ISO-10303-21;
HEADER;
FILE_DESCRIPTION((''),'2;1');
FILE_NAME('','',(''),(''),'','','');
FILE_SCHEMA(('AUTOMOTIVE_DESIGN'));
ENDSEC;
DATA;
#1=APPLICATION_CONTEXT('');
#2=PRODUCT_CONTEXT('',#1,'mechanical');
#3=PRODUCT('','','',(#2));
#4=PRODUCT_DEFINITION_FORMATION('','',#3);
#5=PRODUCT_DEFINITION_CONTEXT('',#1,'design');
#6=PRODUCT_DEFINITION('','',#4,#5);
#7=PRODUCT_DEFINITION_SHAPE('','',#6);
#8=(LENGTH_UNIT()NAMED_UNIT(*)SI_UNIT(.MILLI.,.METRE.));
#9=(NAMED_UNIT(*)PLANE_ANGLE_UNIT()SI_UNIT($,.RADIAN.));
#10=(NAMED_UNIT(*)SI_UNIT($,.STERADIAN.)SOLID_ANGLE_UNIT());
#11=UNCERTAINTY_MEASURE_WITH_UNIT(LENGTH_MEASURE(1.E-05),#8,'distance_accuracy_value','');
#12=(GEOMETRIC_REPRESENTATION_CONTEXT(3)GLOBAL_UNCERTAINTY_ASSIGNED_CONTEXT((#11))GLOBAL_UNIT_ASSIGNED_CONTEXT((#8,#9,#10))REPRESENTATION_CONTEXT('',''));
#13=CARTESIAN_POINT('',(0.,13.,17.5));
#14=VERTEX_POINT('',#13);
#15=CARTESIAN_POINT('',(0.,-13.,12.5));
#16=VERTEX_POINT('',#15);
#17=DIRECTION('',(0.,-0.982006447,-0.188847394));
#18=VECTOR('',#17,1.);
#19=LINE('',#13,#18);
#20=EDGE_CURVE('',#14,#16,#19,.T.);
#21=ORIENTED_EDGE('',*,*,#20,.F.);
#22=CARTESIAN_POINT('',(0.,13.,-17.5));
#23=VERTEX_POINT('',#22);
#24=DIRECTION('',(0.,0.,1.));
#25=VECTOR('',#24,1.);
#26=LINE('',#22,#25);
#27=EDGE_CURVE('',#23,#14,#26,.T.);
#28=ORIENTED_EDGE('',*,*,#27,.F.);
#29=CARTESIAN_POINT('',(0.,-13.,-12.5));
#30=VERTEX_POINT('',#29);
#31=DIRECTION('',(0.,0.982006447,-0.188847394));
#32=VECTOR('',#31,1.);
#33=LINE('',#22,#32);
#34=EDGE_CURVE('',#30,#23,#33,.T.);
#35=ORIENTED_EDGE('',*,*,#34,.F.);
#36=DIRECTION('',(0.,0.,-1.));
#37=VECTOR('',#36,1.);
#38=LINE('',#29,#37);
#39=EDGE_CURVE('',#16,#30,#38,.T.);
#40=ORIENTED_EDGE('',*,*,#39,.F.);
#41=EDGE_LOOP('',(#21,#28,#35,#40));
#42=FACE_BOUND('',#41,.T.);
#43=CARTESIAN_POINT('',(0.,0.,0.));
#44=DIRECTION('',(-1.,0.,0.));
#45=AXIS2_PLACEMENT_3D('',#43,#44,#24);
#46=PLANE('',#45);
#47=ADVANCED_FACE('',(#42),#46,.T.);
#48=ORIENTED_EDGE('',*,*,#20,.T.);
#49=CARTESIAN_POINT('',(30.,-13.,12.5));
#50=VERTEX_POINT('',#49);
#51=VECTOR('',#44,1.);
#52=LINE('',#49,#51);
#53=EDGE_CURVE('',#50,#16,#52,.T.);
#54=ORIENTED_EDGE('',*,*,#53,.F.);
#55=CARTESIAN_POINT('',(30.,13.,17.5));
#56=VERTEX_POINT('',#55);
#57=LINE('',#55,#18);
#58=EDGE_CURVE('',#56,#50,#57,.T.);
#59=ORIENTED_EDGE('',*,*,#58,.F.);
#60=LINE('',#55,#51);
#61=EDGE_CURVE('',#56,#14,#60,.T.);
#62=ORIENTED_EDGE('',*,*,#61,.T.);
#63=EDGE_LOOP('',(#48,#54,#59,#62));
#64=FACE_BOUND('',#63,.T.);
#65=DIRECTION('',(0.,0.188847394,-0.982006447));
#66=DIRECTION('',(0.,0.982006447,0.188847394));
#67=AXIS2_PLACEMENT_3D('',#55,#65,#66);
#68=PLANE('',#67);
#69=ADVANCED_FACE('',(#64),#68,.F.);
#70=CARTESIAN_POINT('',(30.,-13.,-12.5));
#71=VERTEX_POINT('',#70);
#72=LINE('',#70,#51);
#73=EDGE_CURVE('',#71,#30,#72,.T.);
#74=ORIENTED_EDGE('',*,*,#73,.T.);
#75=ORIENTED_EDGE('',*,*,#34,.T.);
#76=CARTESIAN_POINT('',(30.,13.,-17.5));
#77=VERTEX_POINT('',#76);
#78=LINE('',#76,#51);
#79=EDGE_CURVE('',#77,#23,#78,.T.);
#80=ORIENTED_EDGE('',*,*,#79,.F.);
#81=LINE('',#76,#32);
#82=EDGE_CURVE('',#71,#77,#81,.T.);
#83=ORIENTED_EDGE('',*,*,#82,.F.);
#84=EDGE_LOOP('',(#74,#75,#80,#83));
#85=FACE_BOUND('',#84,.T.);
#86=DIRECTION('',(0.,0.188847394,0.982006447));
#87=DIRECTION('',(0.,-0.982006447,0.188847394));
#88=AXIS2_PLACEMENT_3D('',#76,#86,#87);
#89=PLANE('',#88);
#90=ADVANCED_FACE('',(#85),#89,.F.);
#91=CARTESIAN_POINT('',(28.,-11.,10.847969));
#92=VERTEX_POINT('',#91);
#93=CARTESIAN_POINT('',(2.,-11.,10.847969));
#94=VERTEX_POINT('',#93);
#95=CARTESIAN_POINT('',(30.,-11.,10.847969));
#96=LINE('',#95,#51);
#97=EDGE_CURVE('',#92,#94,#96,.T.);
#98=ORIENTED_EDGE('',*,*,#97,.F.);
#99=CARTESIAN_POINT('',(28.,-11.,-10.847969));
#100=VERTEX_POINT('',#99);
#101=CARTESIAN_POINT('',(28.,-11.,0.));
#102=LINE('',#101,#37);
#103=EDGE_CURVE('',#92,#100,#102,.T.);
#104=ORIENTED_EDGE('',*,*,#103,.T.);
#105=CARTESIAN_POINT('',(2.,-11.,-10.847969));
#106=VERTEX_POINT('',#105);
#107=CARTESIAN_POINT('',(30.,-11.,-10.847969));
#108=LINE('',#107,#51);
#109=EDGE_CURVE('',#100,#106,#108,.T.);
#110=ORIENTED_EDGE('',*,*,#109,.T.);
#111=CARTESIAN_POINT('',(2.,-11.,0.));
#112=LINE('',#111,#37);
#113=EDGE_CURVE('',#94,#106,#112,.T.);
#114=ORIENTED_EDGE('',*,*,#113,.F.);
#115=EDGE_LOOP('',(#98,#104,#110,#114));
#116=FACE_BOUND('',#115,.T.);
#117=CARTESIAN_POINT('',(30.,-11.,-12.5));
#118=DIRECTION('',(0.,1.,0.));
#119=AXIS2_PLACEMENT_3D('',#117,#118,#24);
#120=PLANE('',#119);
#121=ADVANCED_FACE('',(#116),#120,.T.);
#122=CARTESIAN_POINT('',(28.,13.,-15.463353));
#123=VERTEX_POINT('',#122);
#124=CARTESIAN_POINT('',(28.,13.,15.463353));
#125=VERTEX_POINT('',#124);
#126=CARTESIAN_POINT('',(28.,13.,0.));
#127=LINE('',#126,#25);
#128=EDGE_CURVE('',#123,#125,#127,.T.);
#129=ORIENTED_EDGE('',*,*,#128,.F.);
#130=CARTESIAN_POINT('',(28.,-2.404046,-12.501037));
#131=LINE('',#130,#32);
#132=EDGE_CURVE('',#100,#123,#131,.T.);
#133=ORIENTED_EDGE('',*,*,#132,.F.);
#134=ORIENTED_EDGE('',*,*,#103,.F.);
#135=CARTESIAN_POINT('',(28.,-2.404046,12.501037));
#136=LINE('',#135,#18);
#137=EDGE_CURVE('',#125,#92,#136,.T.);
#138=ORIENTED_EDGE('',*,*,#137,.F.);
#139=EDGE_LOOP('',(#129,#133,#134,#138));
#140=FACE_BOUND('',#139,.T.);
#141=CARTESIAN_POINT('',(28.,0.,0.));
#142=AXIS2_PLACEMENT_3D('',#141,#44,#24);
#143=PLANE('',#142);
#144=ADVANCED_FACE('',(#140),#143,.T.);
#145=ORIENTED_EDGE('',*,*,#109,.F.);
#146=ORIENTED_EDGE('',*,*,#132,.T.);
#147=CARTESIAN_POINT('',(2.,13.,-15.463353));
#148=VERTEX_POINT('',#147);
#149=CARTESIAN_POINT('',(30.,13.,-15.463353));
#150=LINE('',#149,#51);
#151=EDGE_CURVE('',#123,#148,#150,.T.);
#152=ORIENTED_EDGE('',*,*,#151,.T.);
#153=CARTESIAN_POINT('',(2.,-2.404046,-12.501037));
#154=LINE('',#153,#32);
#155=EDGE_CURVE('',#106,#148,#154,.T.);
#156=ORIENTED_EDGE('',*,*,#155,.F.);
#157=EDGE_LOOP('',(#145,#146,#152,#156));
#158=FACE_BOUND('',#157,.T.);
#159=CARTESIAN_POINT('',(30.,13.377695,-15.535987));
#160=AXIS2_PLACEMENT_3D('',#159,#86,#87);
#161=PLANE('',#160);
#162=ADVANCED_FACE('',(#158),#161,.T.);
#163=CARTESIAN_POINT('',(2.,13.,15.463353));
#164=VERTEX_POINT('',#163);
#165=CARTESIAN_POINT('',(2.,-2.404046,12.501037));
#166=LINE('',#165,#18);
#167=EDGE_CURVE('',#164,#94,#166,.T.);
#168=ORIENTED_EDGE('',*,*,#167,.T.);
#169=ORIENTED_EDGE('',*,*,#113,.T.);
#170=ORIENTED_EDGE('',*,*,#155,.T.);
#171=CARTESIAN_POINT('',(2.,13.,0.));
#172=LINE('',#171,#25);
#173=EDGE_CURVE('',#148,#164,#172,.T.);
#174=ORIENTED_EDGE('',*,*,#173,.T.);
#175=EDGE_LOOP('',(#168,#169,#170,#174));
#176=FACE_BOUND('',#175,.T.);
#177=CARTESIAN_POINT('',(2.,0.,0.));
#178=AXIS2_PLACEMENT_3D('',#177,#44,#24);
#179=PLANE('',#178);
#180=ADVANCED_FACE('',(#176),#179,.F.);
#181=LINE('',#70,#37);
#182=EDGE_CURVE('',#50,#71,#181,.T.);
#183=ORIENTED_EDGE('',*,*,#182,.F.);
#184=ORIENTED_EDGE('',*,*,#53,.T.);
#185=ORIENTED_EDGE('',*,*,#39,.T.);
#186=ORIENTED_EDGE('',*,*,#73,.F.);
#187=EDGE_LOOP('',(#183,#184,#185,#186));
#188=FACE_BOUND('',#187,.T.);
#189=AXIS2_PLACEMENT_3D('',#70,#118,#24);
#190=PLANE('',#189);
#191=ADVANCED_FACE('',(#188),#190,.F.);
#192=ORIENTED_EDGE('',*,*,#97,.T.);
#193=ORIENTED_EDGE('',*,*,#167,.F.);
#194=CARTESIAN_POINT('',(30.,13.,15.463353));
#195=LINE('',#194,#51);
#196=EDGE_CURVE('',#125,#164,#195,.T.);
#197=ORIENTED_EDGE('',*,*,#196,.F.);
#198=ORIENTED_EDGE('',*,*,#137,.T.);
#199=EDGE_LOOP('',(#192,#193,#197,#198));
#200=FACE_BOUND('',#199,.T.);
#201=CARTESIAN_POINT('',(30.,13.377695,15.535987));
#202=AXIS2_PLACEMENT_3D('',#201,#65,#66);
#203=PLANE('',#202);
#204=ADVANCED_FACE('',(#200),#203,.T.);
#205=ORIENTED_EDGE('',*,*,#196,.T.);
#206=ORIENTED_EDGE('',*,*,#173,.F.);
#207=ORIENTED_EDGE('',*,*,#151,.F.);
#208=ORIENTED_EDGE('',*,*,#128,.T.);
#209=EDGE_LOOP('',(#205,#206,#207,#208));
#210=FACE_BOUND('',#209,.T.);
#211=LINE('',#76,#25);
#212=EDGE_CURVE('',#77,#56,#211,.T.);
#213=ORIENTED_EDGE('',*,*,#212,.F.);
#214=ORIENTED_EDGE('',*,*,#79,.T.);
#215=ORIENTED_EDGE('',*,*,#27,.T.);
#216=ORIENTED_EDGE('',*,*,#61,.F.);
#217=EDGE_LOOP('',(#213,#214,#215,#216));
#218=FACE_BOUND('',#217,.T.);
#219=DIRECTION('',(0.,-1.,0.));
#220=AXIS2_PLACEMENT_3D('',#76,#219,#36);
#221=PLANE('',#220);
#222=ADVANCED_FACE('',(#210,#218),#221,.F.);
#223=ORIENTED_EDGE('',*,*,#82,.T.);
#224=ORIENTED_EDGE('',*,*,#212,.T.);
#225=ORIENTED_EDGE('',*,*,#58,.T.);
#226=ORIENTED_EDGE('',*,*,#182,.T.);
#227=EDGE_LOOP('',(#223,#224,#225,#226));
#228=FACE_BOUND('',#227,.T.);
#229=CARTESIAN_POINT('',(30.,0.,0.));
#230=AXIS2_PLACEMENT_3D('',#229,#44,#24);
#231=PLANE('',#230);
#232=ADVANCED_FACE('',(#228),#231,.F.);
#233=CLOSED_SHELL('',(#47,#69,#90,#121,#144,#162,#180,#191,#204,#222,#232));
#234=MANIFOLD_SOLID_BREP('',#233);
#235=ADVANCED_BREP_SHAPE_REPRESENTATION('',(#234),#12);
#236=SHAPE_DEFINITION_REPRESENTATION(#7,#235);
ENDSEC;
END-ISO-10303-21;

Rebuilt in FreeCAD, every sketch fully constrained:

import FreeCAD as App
import Part
import Sketcher
Q = App.Units.Quantity


def faces_at(feature, points):
    """Names of the faces that lie closest to the given points."""
    faces = feature.Shape.Faces
    near = lambda p: min(range(len(faces)), key=lambda i: faces[i].distToShape(Part.Vertex(*p))[0])
    return sorted({f"Face{near(p) + 1}" for p in points})


def add_polygon(sketch, points):
    """Adds a closed chain of lines whose ends are joined by coincident constraints."""
    first, n = sketch.GeometryCount, len(points)
    for a, b in zip(points, points[1:] + points[:1]):
        sketch.addGeometry(Part.LineSegment(App.Vector(*a, 0), App.Vector(*b, 0)), False)
    for i in range(n):
        sketch.addConstraint(Sketcher.Constraint("Coincident", first + i, 2, first + (i + 1) % n, 1))

doc = App.newDocument("Part")
body = doc.addObject("PartDesign::Body", "Body")

# Sketch on YZ plane
sketch1 = body.newObject("Sketcher::SketchObject", "Sketch")
sketch1.AttachmentSupport = (doc.getObject("YZ_Plane"), [""])
sketch1.MapMode = "FlatFace"
add_polygon(sketch1, [(13, -17.5), (13, 17.5), (-13, 12.5), (-13, -12.5)])  # lines 0-3
sketch1.addConstraint(Sketcher.Constraint("Vertical", 0))
sketch1.addConstraint(Sketcher.Constraint("Vertical", 2))
sketch1.addConstraint(Sketcher.Constraint("Equal", 1, 3))
sketch1.addConstraint(Sketcher.Constraint("DistanceY", 0, 1, 0, 2, Q("35 mm")))
sketch1.addConstraint(Sketcher.Constraint("DistanceY", 2, 2, 2, 1, Q("25 mm")))
sketch1.addConstraint(Sketcher.Constraint("DistanceX", -1, 1, 0, 2, Q("13 mm")))
sketch1.addConstraint(Sketcher.Constraint("DistanceX", 1, 2, -1, 1, Q("13 mm")))
sketch1.addConstraint(Sketcher.Constraint("DistanceY", -1, 1, 0, 2, Q("17.5 mm")))
pad1 = body.newObject("PartDesign::Pad", "Pad")
pad1.Profile = sketch1
pad1.Length = 30
doc.recompute()

thickness = body.newObject("PartDesign::Thickness", "Thickness")
thickness.Base = (pad1, faces_at(pad1, [(15, 13, 0)]))
thickness.Value = 2
thickness.Reversed = True
thickness.Join = "Intersection"

doc.recompute()
